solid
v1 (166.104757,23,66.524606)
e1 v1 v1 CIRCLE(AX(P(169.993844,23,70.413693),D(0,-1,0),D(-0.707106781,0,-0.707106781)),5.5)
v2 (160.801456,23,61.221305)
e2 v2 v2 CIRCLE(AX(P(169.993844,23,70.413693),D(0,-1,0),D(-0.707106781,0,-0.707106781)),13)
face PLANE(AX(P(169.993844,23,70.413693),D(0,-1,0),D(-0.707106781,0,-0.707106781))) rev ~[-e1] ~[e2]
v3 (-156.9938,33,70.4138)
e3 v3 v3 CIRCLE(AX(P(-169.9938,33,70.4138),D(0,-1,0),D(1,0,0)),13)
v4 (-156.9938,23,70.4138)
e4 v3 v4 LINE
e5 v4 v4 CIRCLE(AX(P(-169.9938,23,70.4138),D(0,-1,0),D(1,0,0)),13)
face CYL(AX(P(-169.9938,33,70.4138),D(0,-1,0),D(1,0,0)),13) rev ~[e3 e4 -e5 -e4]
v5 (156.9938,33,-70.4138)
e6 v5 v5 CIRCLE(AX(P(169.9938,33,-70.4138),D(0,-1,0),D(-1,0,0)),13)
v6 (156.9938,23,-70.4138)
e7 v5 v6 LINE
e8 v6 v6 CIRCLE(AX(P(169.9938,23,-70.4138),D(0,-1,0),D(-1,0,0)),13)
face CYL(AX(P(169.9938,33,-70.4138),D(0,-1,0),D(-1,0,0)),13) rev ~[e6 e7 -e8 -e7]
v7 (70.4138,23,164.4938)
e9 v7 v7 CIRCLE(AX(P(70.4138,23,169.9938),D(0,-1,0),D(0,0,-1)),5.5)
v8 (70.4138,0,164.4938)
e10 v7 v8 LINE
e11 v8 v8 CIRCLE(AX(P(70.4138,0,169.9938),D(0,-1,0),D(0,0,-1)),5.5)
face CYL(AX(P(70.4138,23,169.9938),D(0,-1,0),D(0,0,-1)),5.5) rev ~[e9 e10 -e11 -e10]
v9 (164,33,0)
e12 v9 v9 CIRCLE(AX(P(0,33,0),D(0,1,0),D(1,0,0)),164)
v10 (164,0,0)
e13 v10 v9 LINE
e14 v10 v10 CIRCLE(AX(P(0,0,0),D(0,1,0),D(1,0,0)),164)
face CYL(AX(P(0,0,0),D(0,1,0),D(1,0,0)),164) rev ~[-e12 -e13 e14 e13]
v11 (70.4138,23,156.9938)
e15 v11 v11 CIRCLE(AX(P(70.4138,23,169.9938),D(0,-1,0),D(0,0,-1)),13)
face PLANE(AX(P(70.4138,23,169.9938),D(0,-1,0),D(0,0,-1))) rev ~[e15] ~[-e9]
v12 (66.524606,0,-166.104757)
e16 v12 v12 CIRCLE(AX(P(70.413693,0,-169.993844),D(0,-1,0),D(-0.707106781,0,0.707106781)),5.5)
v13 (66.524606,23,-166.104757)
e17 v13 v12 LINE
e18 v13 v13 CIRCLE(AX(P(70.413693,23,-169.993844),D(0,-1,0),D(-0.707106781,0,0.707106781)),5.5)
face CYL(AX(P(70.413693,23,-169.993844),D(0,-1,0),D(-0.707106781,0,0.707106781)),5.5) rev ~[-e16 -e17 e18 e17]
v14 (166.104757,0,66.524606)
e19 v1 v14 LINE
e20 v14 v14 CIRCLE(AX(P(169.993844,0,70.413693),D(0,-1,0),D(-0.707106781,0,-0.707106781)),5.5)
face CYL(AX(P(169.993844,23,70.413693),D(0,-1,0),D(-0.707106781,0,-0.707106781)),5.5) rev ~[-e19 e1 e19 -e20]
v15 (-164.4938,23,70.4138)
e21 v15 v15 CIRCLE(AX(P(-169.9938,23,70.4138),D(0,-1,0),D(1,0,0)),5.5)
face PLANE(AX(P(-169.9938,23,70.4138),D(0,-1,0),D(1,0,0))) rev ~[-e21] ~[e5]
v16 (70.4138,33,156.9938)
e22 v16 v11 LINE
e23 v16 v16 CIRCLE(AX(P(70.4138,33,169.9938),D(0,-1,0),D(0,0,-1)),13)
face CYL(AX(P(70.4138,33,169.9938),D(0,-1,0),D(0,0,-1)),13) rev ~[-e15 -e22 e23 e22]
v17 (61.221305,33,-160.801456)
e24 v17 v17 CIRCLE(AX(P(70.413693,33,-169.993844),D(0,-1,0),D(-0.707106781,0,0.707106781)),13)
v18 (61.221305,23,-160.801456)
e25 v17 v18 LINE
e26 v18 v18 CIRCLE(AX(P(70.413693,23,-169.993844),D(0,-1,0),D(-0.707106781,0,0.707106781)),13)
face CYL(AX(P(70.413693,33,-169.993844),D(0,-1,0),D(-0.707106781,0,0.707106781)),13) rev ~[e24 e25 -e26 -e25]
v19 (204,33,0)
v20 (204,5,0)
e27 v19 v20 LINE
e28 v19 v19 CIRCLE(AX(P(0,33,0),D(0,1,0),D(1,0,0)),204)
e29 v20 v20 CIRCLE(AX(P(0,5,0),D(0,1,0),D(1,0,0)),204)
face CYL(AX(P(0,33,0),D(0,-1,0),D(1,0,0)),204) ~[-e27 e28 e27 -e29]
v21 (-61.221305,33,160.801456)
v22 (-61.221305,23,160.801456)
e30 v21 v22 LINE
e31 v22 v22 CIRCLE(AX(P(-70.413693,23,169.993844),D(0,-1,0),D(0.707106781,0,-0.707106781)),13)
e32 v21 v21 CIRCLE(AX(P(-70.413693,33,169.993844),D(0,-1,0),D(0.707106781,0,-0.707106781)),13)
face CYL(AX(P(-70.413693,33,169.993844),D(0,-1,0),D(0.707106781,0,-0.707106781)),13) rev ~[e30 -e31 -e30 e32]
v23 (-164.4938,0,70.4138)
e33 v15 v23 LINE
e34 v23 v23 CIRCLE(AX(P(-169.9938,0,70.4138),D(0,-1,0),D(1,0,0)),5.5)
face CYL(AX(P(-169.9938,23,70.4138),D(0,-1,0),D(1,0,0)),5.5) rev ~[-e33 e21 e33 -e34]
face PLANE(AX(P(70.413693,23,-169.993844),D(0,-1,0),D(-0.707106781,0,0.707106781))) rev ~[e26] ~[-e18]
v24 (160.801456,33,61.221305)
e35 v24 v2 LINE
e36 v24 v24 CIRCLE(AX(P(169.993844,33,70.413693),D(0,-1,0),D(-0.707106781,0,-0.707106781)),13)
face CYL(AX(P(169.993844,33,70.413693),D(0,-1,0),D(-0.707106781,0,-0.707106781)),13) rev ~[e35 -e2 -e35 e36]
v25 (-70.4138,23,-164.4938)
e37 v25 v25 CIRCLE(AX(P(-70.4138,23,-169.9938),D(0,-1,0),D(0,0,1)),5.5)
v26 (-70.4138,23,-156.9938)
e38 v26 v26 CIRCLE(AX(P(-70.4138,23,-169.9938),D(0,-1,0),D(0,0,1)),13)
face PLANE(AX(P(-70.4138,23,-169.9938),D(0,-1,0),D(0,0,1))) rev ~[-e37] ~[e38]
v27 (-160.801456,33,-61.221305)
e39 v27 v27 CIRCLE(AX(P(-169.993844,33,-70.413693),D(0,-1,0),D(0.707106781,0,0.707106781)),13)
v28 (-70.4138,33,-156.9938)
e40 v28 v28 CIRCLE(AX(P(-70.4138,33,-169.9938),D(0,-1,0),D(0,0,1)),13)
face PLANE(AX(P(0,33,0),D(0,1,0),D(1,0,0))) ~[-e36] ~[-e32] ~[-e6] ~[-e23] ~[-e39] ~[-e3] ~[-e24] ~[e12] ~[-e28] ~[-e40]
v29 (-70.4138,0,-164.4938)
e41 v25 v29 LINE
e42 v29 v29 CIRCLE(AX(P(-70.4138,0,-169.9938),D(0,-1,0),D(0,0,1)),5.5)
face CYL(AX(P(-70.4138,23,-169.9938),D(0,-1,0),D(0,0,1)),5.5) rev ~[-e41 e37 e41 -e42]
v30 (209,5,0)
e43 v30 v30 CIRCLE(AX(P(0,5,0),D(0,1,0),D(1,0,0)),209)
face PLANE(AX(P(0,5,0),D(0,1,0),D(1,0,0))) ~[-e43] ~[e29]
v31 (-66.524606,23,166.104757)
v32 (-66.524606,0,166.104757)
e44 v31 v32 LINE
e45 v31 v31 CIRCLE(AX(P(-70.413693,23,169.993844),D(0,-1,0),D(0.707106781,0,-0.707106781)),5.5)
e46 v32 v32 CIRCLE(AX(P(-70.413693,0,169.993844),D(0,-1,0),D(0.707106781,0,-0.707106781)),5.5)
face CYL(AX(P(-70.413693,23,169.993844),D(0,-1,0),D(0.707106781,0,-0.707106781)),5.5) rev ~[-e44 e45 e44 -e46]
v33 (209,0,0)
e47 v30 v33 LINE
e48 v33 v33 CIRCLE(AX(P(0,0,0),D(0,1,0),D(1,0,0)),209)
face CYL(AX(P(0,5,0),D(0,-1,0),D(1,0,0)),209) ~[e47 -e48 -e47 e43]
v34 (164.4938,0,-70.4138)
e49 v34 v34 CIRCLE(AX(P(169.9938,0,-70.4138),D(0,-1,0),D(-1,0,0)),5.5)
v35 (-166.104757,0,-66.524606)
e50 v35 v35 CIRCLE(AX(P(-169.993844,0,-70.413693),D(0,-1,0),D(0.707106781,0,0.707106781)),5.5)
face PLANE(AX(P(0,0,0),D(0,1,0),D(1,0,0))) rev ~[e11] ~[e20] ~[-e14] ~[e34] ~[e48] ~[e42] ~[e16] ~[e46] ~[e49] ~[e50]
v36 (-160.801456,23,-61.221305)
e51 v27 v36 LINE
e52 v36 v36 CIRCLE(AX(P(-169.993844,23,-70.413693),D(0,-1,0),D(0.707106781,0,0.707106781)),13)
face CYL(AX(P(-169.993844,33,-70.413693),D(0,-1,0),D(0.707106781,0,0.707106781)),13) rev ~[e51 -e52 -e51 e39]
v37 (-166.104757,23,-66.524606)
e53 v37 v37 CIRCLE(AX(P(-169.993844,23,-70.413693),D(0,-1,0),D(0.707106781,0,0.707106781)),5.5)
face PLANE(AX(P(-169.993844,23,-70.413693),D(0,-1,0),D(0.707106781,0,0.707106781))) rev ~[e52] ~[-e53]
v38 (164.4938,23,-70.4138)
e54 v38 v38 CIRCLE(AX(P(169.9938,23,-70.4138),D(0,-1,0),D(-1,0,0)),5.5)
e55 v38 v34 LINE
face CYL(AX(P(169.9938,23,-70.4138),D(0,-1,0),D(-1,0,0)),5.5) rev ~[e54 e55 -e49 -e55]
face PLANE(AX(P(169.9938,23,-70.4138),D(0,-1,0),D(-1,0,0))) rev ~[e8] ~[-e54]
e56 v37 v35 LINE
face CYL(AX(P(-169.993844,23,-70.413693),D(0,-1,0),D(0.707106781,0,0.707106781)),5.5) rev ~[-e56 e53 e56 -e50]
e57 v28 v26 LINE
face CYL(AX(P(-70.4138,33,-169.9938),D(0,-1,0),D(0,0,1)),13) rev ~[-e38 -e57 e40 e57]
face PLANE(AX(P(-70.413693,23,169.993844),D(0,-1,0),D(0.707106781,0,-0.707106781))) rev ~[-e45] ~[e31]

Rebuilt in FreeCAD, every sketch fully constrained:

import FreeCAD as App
import Part
import Sketcher

V = App.Vector


def add_polygon(sketch, points):
    """Adds a closed chain of lines whose ends are joined by coincident constraints."""
    first, n = sketch.GeometryCount, len(points)
    for a, b in zip(points, points[1:] + points[:1]):
        sketch.addGeometry(Part.LineSegment(App.Vector(*a, 0), App.Vector(*b, 0)), False)
    for i in range(n):
        sketch.addConstraint(Sketcher.Constraint("Coincident", first + i, 2, first + (i + 1) % n, 1))

doc = App.newDocument("Part")
params = doc.addObject("Spreadsheet::Sheet", "Params")
for row, (alias, value) in enumerate([
    ("sketch1_width", "5 mm"),
    ("sketch1_height", "28 mm"),
    ("sketch1_width2", "45 mm"),
    ("revolution_angle", "360 deg"),
    ("sketch2_diameter", "11 mm"),
    ("hole_diameter", "11 mm"),
    ("hole_cbore_diameter", "26 mm"),
    ("hole_cbore_depth", "10 mm"),
], start=1):
    params.set(f"A{row}", alias)
    params.set(f"B{row}", "=" + value)
    params.setAlias(f"B{row}", alias)

body = doc.addObject("PartDesign::Body", "Body")

# Sketch on XY plane
sketch1 = doc.addObject("Sketcher::SketchObject", "Sketch")
body.addObject(sketch1)
sketch1.AttachmentSupport = (doc.XY_Plane, [""])
sketch1.MapMode = "FlatFace"
add_polygon(sketch1, [(164, 33), (164, 0), (209, 0), (209, 5), (204, 5), (204, 33)])  # lines 0-5
sketch1.addConstraint([
    Sketcher.Constraint("Vertical", 0),
    Sketcher.Constraint("Horizontal", 1),
    Sketcher.Constraint("Vertical", 2),
    Sketcher.Constraint("Horizontal", 3),
    Sketcher.Constraint("Vertical", 4),
    Sketcher.Constraint("Horizontal", 5),
    Sketcher.Constraint("PointOnObject", 0, 2, -1),
    Sketcher.Constraint("Equal", 3, 2),
    Sketcher.Constraint("DistanceX", 3, 2, 3, 1, 5.0),
    Sketcher.Constraint("DistanceY", 4, 1, 4, 2, 28.0),
    Sketcher.Constraint("DistanceX", 1, 1, 1, 2, 45.0),
    Sketcher.Constraint("DistanceX", -1, 1, 0, 2, 164.0),
])
sketch1.setExpression("Constraints[14]", "Params.sketch1_width")
sketch1.setExpression("Constraints[15]", "Params.sketch1_height")
sketch1.setExpression("Constraints[16]", "Params.sketch1_width2")
revolution = doc.addObject("PartDesign::Revolution", "Revolution")
body.addObject(revolution)
revolution.Profile = sketch1
revolution.ReferenceAxis = (sketch1, ["V_Axis"])
revolution.setExpression("Angle", "Params.revolution_angle")

# Sketch on XZ plane
sketch2 = doc.addObject("Sketcher::SketchObject", "Sketch001")
body.addObject(sketch2)
sketch2.AttachmentSupport = (doc.XZ_Plane, [""])
sketch2.MapMode = "FlatFace"
sketch2.AttachmentOffset = App.Placement(V(0, 0, -33), App.Rotation())
sketch2.addGeometry(Part.Circle(V(-70, -170, 0), V(0, 0, 1), 6), False)
sketch2.addConstraint([
    Sketcher.Constraint("Diameter", 0, 11.0),
    Sketcher.Constraint("DistanceX", 0, 3, -1, 1, 70.4138),
    Sketcher.Constraint("DistanceY", 0, 3, -1, 1, 169.9938),
])
sketch2.setExpression("Constraints[0]", "Params.sketch2_diameter")
doc.recompute()
hole = doc.addObject("PartDesign::Hole", "Hole")
body.addObject(hole)
hole.Profile = sketch2
hole.ThreadType = "None"
hole.setExpression("Diameter", "Params.hole_diameter")
hole.DepthType = "ThroughAll"
hole.HoleCutType = "Counterbore"
hole.setExpression("HoleCutDiameter", "Params.hole_cbore_diameter")
hole.setExpression("HoleCutDepth", "Params.hole_cbore_depth")
hole.Reversed = True
doc.recompute()

polarpattern = doc.addObject("PartDesign::PolarPattern", "PolarPattern")
body.addObject(polarpattern)
polarpattern.Originals = [hole]
polarpattern.Axis = (doc.Y_Axis, [""])
polarpattern.Angle = 360
polarpattern.Occurrences = 8
body.Tip = polarpattern

doc.recompute()
